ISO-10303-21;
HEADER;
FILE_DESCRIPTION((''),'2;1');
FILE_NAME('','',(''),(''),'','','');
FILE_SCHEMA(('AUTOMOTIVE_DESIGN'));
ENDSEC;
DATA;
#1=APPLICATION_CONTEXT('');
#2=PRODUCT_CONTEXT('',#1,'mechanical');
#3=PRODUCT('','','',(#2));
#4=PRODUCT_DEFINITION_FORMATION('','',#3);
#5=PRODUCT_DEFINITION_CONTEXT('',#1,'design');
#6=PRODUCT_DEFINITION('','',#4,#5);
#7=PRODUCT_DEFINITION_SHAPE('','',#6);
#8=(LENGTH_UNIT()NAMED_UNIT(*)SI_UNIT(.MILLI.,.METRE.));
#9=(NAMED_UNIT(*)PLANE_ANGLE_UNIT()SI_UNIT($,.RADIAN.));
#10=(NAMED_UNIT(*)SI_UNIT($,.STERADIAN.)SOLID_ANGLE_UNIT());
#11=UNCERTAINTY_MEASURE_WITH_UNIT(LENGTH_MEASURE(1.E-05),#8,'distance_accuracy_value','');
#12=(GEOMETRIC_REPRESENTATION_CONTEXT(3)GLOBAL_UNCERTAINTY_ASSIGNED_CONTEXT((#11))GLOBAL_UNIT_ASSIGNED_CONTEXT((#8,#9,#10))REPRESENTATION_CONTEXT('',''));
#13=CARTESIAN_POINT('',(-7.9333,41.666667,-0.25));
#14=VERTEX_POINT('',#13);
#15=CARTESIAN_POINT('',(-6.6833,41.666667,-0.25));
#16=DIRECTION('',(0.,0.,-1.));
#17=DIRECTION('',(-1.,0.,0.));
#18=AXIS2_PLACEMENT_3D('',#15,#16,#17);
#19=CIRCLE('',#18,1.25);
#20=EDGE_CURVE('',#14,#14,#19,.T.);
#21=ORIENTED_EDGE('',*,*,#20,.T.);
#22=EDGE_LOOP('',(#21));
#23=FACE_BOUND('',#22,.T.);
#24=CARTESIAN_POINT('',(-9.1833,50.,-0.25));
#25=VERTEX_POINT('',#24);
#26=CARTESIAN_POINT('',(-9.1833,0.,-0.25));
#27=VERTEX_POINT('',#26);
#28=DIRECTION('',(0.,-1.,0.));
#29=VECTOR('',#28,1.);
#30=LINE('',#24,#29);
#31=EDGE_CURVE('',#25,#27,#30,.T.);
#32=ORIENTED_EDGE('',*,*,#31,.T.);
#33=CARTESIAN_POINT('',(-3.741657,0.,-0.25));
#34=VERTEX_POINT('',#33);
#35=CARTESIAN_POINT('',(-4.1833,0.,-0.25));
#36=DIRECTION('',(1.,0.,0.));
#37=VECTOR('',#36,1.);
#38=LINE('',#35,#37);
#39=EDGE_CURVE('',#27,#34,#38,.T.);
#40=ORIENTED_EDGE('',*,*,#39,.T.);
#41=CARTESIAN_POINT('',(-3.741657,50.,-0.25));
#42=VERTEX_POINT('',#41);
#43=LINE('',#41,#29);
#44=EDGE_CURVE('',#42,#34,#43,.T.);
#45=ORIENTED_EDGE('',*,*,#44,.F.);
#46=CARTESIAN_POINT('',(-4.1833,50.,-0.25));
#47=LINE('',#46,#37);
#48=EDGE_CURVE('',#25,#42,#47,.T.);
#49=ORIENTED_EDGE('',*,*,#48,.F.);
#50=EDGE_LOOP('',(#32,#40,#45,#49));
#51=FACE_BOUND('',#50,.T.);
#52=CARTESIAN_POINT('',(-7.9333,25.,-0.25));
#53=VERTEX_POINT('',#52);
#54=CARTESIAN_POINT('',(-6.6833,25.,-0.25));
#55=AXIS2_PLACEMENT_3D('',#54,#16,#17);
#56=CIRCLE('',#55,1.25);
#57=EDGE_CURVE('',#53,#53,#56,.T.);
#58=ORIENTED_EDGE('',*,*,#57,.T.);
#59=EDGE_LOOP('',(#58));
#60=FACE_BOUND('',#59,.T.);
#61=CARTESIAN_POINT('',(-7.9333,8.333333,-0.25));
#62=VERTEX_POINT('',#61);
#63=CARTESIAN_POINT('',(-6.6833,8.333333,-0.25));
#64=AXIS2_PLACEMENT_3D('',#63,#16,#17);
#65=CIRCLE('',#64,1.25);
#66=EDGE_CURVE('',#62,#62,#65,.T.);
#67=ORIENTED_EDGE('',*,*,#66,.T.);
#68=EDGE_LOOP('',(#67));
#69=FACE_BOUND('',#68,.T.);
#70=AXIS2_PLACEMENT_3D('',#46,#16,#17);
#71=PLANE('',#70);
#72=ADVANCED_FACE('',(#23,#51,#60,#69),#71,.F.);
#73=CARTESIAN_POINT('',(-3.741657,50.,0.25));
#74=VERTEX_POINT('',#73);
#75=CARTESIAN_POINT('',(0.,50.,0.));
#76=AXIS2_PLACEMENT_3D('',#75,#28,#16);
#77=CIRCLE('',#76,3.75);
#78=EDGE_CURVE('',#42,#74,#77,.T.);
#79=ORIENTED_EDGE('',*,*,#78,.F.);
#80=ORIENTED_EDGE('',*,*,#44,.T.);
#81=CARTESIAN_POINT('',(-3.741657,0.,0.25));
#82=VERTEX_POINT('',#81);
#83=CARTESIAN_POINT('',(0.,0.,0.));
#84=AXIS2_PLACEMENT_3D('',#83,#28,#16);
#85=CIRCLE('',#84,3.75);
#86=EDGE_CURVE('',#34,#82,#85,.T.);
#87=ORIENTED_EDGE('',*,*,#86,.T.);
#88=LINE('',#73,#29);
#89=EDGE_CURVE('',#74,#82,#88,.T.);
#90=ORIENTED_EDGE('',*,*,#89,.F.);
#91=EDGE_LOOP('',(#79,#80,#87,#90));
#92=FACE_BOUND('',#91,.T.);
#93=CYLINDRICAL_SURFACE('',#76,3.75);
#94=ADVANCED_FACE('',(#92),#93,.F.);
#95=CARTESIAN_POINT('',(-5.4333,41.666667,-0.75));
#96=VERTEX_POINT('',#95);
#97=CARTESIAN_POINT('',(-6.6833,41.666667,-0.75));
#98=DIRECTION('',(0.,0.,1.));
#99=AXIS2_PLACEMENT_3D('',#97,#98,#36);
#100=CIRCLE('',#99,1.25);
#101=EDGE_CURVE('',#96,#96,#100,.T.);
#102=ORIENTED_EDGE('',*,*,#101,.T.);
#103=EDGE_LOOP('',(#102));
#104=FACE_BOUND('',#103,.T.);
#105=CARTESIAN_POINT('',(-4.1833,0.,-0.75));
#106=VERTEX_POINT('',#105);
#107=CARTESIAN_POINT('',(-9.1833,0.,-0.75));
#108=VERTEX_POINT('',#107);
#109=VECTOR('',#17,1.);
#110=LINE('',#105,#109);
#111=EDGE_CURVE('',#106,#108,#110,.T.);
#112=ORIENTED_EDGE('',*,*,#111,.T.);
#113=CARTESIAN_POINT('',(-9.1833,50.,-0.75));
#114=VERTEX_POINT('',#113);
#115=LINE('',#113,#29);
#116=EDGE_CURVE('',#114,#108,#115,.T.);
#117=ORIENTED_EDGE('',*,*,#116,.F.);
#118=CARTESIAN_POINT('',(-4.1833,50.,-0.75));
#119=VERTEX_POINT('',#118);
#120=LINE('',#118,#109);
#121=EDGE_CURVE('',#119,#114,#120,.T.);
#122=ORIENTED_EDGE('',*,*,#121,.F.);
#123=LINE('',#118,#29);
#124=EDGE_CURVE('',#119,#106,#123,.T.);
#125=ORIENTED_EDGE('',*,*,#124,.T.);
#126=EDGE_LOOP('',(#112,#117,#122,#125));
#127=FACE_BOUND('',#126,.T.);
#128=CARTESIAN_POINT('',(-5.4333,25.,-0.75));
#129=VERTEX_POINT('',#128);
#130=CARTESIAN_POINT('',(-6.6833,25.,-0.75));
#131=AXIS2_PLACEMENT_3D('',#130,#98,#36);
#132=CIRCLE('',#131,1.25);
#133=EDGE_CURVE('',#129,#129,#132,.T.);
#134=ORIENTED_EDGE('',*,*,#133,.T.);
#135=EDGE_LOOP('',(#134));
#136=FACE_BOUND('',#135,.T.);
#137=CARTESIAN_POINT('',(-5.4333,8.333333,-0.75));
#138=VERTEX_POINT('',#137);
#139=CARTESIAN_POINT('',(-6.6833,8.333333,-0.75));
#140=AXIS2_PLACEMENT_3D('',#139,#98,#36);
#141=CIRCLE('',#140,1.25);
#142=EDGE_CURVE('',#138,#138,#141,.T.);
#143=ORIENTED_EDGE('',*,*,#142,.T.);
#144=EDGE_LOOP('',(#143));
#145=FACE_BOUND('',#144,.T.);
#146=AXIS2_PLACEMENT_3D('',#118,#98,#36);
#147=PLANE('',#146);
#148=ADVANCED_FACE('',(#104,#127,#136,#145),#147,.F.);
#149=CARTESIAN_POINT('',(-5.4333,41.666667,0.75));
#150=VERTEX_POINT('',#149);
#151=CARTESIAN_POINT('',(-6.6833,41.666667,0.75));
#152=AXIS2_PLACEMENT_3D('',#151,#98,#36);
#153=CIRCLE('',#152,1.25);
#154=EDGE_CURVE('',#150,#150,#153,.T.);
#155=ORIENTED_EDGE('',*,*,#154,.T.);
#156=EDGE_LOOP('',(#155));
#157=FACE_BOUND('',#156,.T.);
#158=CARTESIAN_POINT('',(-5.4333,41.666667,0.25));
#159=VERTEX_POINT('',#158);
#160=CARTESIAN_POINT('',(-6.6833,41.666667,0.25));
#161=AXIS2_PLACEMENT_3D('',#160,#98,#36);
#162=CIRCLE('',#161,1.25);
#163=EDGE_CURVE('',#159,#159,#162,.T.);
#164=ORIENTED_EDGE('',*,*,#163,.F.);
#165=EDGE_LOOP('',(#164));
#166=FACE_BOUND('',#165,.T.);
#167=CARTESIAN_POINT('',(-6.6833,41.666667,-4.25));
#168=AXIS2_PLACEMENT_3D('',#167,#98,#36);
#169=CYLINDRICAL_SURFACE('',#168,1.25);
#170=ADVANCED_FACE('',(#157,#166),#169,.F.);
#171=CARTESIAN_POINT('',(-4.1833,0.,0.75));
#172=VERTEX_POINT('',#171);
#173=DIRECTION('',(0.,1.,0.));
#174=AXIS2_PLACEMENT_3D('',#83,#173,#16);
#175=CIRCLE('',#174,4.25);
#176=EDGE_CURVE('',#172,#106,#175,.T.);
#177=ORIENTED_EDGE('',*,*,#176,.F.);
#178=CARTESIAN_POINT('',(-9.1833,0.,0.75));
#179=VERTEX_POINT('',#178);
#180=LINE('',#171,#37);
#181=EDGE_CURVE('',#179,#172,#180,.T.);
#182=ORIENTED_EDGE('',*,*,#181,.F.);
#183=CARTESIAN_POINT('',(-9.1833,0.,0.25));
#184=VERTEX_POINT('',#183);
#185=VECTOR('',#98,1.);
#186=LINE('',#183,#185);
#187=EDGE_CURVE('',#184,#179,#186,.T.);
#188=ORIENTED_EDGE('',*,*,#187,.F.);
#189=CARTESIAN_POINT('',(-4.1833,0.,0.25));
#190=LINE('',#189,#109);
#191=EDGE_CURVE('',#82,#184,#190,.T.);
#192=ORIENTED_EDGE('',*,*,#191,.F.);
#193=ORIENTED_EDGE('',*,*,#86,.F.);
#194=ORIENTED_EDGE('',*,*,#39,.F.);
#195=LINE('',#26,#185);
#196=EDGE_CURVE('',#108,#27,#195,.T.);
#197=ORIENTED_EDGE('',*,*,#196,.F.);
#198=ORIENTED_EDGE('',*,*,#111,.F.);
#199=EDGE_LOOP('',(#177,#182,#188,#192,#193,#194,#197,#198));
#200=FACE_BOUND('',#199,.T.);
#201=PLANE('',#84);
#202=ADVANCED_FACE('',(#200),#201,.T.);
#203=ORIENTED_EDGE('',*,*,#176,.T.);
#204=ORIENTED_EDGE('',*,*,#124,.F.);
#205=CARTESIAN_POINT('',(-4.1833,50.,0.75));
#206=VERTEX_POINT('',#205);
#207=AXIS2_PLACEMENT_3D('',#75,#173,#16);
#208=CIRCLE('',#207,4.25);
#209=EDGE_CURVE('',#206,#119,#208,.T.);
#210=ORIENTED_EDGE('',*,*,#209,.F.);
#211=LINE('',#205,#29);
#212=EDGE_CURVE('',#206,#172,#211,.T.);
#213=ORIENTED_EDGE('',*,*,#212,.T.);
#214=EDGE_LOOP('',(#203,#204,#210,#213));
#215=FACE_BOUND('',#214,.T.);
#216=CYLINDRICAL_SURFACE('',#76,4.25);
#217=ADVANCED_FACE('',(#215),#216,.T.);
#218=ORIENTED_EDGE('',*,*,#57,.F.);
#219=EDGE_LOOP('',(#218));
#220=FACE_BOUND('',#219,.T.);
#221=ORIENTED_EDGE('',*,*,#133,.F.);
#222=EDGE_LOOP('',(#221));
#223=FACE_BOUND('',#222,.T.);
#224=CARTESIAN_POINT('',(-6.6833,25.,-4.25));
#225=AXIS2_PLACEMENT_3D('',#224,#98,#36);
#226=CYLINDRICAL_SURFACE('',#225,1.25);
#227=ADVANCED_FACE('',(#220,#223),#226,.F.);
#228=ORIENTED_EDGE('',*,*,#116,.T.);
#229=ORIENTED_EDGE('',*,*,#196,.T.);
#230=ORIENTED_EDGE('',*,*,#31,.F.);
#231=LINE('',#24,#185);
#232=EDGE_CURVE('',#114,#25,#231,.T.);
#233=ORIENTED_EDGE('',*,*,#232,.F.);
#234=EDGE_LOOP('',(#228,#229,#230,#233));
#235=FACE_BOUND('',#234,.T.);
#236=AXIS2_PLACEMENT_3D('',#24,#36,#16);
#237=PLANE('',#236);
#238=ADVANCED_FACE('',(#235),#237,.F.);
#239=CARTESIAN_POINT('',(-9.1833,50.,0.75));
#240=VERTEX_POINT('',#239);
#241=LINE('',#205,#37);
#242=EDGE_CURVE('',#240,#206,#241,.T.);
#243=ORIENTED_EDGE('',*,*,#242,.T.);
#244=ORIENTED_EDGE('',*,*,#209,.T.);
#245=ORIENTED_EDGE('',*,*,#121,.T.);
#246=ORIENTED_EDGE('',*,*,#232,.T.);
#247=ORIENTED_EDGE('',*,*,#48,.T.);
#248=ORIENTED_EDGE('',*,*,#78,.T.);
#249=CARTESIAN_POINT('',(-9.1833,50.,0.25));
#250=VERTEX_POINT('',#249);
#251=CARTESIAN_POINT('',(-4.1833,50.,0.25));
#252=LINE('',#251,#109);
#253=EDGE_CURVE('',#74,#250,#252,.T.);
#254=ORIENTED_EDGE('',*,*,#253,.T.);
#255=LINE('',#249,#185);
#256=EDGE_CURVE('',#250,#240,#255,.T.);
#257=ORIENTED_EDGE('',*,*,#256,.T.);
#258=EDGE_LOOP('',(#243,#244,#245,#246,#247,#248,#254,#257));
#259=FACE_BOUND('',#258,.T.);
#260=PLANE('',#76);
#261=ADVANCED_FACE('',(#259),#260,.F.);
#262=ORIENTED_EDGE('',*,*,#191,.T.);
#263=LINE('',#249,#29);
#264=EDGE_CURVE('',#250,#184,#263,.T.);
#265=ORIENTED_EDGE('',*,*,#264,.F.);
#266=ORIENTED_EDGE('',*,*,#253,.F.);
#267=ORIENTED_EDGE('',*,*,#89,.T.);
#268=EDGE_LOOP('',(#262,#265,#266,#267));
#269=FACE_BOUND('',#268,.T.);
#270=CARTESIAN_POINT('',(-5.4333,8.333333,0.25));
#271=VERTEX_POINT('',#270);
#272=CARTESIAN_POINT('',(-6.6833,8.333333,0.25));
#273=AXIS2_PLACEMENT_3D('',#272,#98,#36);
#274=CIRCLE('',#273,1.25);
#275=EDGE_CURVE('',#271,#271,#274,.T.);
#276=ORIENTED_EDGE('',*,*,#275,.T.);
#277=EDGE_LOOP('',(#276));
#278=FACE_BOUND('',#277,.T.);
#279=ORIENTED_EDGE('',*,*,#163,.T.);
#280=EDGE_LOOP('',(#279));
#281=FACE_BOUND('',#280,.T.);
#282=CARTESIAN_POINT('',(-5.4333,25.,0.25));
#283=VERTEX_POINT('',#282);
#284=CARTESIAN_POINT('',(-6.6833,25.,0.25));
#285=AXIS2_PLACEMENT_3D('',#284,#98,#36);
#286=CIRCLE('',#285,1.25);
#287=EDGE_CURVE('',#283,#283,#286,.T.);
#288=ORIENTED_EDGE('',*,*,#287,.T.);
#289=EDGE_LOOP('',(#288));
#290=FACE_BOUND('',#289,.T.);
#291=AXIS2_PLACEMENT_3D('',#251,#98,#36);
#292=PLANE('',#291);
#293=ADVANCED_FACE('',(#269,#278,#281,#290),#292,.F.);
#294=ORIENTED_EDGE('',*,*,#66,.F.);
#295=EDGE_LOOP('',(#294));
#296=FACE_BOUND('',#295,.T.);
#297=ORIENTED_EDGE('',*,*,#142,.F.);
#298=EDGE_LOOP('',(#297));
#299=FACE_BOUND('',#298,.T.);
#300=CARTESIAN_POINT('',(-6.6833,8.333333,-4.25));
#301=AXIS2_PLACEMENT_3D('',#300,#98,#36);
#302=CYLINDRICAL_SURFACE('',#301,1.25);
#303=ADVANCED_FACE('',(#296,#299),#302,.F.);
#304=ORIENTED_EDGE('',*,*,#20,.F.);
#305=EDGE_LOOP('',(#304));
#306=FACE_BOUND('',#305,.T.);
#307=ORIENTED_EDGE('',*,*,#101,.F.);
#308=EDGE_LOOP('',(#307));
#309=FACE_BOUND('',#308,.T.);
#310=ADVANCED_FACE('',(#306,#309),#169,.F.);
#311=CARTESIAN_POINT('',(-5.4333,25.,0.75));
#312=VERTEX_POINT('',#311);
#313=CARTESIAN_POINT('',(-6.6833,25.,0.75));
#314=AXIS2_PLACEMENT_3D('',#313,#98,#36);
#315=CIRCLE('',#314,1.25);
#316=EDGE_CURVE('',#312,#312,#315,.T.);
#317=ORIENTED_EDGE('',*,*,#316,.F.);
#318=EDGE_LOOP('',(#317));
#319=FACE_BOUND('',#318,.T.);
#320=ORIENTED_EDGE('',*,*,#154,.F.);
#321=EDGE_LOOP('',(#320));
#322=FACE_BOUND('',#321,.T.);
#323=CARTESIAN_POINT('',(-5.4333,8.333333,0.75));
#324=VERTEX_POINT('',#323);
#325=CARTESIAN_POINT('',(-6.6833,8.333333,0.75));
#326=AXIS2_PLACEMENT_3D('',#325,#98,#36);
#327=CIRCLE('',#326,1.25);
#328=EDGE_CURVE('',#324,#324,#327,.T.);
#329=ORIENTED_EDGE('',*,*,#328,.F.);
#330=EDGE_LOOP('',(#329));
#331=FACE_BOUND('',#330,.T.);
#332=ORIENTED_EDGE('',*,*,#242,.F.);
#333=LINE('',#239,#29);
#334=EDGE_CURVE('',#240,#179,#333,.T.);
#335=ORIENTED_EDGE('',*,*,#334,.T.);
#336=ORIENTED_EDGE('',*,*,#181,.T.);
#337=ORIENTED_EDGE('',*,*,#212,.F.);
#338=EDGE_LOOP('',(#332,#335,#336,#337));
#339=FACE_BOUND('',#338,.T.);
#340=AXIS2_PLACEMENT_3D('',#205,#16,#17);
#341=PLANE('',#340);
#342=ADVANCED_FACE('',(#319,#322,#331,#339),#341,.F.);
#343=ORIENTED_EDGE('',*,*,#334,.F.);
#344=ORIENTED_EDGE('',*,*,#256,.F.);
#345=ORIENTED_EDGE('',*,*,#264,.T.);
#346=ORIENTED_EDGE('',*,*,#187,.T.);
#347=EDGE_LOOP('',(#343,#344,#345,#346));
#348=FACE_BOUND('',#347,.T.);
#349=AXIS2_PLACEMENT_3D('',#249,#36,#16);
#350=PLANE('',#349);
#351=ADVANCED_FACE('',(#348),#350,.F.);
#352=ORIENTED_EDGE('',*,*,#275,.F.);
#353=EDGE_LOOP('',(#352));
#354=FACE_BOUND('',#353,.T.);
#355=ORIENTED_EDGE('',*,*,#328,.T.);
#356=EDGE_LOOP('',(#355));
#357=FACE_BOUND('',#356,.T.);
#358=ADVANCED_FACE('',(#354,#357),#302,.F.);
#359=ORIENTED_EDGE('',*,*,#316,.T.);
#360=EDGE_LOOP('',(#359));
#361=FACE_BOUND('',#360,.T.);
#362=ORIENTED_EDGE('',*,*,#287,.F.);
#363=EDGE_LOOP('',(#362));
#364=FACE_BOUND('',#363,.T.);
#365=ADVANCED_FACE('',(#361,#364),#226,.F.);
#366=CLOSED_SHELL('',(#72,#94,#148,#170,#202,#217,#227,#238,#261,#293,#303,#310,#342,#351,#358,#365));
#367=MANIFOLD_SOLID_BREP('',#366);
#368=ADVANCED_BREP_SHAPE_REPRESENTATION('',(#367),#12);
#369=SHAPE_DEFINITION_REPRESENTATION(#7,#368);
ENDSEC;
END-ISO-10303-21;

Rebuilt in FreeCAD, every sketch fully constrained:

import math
import FreeCAD as App
import Part
import Sketcher
Q = App.Units.Quantity

doc = App.newDocument("Part")
body = doc.addObject("PartDesign::Body", "Body")

sketch1 = doc.addObject("Sketcher::SketchObject", "Sketch")
body.addObject(sketch1)
sketch1.AttachmentSupport = (doc.XZ_Plane, [""])
sketch1.MapMode = "FlatFace"
sketch1.addGeometry(Part.ArcOfCircle(Part.Circle(App.Vector(0, 0, 0), App.Vector(0, 0, 1), 3.8), math.radians(-176), math.radians(176)), False)
sketch1.addGeometry(Part.LineSegment(App.Vector(-3.7, 0.2, 0), App.Vector(-9.2, 0.2, 0)), False)
sketch1.addGeometry(Part.LineSegment(App.Vector(-9.2, 0.2, 0), App.Vector(-9.2, 0.8, 0)), False)
sketch1.addGeometry(Part.LineSegment(App.Vector(-9.2, 0.8, 0), App.Vector(-4.2, 0.8, 0)), False)
sketch1.addGeometry(Part.ArcOfCircle(Part.Circle(App.Vector(0, 0, 0), App.Vector(0, 0, 1), 4.2), math.radians(-170), math.radians(170)), False)
sketch1.addGeometry(Part.LineSegment(App.Vector(-4.2, -0.8, 0), App.Vector(-9.2, -0.8, 0)), False)
sketch1.addGeometry(Part.LineSegment(App.Vector(-9.2, -0.8, 0), App.Vector(-9.2, -0.2, 0)), False)
sketch1.addGeometry(Part.LineSegment(App.Vector(-9.2, -0.2, 0), App.Vector(-3.7, -0.2, 0)), False)
sketch1.addConstraint(Sketcher.Constraint("Coincident", 0, 2, 1, 1))
sketch1.addConstraint(Sketcher.Constraint("Coincident", 1, 2, 2, 1))
sketch1.addConstraint(Sketcher.Constraint("Coincident", 2, 2, 3, 1))
sketch1.addConstraint(Sketcher.Constraint("Coincident", 3, 2, 4, 2))
sketch1.addConstraint(Sketcher.Constraint("Coincident", 4, 1, 5, 1))
sketch1.addConstraint(Sketcher.Constraint("Coincident", 5, 2, 6, 1))
sketch1.addConstraint(Sketcher.Constraint("Coincident", 6, 2, 7, 1))
sketch1.addConstraint(Sketcher.Constraint("Coincident", 7, 2, 0, 1))
sketch1.addConstraint(Sketcher.Constraint("Horizontal", 1))
sketch1.addConstraint(Sketcher.Constraint("Vertical", 2))
sketch1.addConstraint(Sketcher.Constraint("Horizontal", 3))
sketch1.addConstraint(Sketcher.Constraint("Horizontal", 5))
sketch1.addConstraint(Sketcher.Constraint("Vertical", 6))
sketch1.addConstraint(Sketcher.Constraint("Horizontal", 7))
sketch1.addConstraint(Sketcher.Constraint("Coincident", 0, 3, -1, 1))
sketch1.addConstraint(Sketcher.Constraint("Coincident", 4, 3, -1, 1))
sketch1.addConstraint(Sketcher.Constraint("Symmetric", 2, 2, 5, 2, -1))
sketch1.addConstraint(Sketcher.Constraint("Vertical", 0, 2, 7, 2))
sketch1.addConstraint(Sketcher.Constraint("DistanceX", 3, 1, 3, 2, Q("5 mm")))
sketch1.addConstraint(Sketcher.Constraint("Radius", 0, Q("3.75 mm")))
sketch1.addConstraint(Sketcher.Constraint("Radius", 4, Q("4.25 mm")))
sketch1.addConstraint(Sketcher.Constraint("DistanceY", 2, 1, 2, 2, Q("0.5 mm")))
sketch1.addConstraint(Sketcher.Constraint("DistanceY", 4, 1, 0, 2, Q("1 mm")))
pad1 = doc.addObject("PartDesign::Pad", "Pad")
body.addObject(pad1)
pad1.Profile = sketch1
pad1.Length = 50
pad1.Reversed = True

sketch2 = doc.addObject("Sketcher::SketchObject", "Sketch001")
body.addObject(sketch2)
sketch2.AttachmentSupport = (doc.XY_Plane, [""])
sketch2.MapMode = "FlatFace"
sketch2.AttachmentOffset = App.Placement(App.Vector(0, 0, 0.75), App.Rotation())
sketch2.addGeometry(Part.Circle(App.Vector(-6.7, 41.7, 0), App.Vector(0, 0, 1), 1.2), False)
sketch2.addGeometry(Part.Circle(App.Vector(-6.7, 25, 0), App.Vector(0, 0, 1), 1.2), False)
sketch2.addGeometry(Part.Circle(App.Vector(-6.7, 8.3, 0), App.Vector(0, 0, 1), 1.2), False)
sketch2.addConstraint(Sketcher.Constraint("Equal", 0, 1))
sketch2.addConstraint(Sketcher.Constraint("Equal", 1, 2))
sketch2.addConstraint(Sketcher.Constraint("Vertical", 0, 3, 1, 3))
sketch2.addConstraint(Sketcher.Constraint("Vertical", 1, 3, 2, 3))
sketch2.addConstraint(Sketcher.Constraint("Diameter", 0, Q("2.5 mm")))
sketch2.addConstraint(Sketcher.Constraint("DistanceY", -1, 1, 1, 3, Q("25 mm")))
sketch2.addConstraint(Sketcher.Constraint("DistanceX", 0, 3, -1, 1, Q("6.6833 mm")))
sketch2.addConstraint(Sketcher.Constraint("DistanceY", -1, 1, 0, 3, Q("41.666667 mm")))
sketch2.addConstraint(Sketcher.Constraint("DistanceY", -1, 1, 2, 3, Q("8.333333 mm")))
pocket1 = doc.addObject("PartDesign::Pocket", "Pocket")
body.addObject(pocket1)
pocket1.Profile = sketch2
pocket1.Type = "ThroughAll"

doc.recompute()
